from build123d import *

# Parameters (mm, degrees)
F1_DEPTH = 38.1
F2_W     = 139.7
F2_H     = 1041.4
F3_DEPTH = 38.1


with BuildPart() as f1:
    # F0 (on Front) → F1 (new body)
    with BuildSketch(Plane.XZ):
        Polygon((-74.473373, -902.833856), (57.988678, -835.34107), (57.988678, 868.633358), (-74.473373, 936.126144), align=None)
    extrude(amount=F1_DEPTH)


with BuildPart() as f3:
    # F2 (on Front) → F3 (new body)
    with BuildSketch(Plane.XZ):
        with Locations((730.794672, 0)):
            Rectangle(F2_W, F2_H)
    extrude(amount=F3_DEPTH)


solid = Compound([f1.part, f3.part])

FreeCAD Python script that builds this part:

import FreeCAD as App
import Part
import Sketcher

V = App.Vector
Q = App.Units.Quantity


def add_polygon(sketch, points):
    """Adds a closed chain of lines whose ends are joined by coincident constraints."""
    first, n = sketch.GeometryCount, len(points)
    for a, b in zip(points, points[1:] + points[:1]):
        sketch.addGeometry(Part.LineSegment(App.Vector(*a, 0), App.Vector(*b, 0)), False)
    for i in range(n):
        sketch.addConstraint(Sketcher.Constraint("Coincident", first + i, 2, first + (i + 1) % n, 1))

doc = App.newDocument("Part")
body = doc.addObject("PartDesign::Body", "Body")

# Sketch on XZ plane
sketch1 = doc.addObject("Sketcher::SketchObject", "Sketch")
body.addObject(sketch1)
sketch1.AttachmentSupport = (doc.XZ_Plane, [""])
sketch1.MapMode = "FlatFace"
add_polygon(sketch1, [(-74, -903), (58, -835), (58, 869), (-74, 936)])  # lines 0-3
sketch1.addConstraint([
    Sketcher.Constraint("Vertical", 1),
    Sketcher.Constraint("Vertical", 3),
    Sketcher.Constraint("Equal", 0, 2),
    Sketcher.Constraint("DistanceY", 3, 2, 3, 1, Q("72.4 in")),
    Sketcher.Constraint("Angle", 0, Q("27 deg")),
    Sketcher.Constraint("DistanceY", 1, 1, 1, 2, Q("1703.974428 mm")),
    Sketcher.Constraint("DistanceY", 0, 2, -1, 1, Q("835.34107 mm")),
    Sketcher.Constraint("DistanceX", -1, 1, 0, 2, Q("57.988678 mm")),
])
pad1 = doc.addObject("PartDesign::Pad", "Pad")
body.addObject(pad1)
pad1.Profile = sketch1
pad1.Length = Q("1.5 in")
body2 = doc.addObject("PartDesign::Body", "Body001")

# Sketch on XZ plane
sketch2 = doc.addObject("Sketcher::SketchObject", "Sketch001")
body2.addObject(sketch2)
sketch2.AttachmentSupport = (doc.getObject("XZ_Plane001"), [""])
sketch2.MapMode = "FlatFace"
add_polygon(sketch2, [(661, 521), (661, -521), (801, -521), (801, 521)])  # lines 0-3
sketch2.addConstraint([
    Sketcher.Constraint("Vertical", 0),
    Sketcher.Constraint("Horizontal", 1),
    Sketcher.Constraint("Vertical", 2),
    Sketcher.Constraint("Horizontal", 3),
    Sketcher.Constraint("DistanceY", 0, 2, 0, 1, Q("41 in")),
    Sketcher.Constraint("DistanceX", 1, 1, 1, 2, Q("5.5 in")),
    Sketcher.Constraint("DistanceY", 0, 2, -1, 1, Q("20.5 in")),
    Sketcher.Constraint("DistanceX", -1, 1, 0, 2, Q("660.944672 mm")),
])
pad2 = doc.addObject("PartDesign::Pad", "Pad001")
body2.addObject(pad2)
pad2.Profile = sketch2
pad2.Length = Q("1.5 in")

doc.recompute()
